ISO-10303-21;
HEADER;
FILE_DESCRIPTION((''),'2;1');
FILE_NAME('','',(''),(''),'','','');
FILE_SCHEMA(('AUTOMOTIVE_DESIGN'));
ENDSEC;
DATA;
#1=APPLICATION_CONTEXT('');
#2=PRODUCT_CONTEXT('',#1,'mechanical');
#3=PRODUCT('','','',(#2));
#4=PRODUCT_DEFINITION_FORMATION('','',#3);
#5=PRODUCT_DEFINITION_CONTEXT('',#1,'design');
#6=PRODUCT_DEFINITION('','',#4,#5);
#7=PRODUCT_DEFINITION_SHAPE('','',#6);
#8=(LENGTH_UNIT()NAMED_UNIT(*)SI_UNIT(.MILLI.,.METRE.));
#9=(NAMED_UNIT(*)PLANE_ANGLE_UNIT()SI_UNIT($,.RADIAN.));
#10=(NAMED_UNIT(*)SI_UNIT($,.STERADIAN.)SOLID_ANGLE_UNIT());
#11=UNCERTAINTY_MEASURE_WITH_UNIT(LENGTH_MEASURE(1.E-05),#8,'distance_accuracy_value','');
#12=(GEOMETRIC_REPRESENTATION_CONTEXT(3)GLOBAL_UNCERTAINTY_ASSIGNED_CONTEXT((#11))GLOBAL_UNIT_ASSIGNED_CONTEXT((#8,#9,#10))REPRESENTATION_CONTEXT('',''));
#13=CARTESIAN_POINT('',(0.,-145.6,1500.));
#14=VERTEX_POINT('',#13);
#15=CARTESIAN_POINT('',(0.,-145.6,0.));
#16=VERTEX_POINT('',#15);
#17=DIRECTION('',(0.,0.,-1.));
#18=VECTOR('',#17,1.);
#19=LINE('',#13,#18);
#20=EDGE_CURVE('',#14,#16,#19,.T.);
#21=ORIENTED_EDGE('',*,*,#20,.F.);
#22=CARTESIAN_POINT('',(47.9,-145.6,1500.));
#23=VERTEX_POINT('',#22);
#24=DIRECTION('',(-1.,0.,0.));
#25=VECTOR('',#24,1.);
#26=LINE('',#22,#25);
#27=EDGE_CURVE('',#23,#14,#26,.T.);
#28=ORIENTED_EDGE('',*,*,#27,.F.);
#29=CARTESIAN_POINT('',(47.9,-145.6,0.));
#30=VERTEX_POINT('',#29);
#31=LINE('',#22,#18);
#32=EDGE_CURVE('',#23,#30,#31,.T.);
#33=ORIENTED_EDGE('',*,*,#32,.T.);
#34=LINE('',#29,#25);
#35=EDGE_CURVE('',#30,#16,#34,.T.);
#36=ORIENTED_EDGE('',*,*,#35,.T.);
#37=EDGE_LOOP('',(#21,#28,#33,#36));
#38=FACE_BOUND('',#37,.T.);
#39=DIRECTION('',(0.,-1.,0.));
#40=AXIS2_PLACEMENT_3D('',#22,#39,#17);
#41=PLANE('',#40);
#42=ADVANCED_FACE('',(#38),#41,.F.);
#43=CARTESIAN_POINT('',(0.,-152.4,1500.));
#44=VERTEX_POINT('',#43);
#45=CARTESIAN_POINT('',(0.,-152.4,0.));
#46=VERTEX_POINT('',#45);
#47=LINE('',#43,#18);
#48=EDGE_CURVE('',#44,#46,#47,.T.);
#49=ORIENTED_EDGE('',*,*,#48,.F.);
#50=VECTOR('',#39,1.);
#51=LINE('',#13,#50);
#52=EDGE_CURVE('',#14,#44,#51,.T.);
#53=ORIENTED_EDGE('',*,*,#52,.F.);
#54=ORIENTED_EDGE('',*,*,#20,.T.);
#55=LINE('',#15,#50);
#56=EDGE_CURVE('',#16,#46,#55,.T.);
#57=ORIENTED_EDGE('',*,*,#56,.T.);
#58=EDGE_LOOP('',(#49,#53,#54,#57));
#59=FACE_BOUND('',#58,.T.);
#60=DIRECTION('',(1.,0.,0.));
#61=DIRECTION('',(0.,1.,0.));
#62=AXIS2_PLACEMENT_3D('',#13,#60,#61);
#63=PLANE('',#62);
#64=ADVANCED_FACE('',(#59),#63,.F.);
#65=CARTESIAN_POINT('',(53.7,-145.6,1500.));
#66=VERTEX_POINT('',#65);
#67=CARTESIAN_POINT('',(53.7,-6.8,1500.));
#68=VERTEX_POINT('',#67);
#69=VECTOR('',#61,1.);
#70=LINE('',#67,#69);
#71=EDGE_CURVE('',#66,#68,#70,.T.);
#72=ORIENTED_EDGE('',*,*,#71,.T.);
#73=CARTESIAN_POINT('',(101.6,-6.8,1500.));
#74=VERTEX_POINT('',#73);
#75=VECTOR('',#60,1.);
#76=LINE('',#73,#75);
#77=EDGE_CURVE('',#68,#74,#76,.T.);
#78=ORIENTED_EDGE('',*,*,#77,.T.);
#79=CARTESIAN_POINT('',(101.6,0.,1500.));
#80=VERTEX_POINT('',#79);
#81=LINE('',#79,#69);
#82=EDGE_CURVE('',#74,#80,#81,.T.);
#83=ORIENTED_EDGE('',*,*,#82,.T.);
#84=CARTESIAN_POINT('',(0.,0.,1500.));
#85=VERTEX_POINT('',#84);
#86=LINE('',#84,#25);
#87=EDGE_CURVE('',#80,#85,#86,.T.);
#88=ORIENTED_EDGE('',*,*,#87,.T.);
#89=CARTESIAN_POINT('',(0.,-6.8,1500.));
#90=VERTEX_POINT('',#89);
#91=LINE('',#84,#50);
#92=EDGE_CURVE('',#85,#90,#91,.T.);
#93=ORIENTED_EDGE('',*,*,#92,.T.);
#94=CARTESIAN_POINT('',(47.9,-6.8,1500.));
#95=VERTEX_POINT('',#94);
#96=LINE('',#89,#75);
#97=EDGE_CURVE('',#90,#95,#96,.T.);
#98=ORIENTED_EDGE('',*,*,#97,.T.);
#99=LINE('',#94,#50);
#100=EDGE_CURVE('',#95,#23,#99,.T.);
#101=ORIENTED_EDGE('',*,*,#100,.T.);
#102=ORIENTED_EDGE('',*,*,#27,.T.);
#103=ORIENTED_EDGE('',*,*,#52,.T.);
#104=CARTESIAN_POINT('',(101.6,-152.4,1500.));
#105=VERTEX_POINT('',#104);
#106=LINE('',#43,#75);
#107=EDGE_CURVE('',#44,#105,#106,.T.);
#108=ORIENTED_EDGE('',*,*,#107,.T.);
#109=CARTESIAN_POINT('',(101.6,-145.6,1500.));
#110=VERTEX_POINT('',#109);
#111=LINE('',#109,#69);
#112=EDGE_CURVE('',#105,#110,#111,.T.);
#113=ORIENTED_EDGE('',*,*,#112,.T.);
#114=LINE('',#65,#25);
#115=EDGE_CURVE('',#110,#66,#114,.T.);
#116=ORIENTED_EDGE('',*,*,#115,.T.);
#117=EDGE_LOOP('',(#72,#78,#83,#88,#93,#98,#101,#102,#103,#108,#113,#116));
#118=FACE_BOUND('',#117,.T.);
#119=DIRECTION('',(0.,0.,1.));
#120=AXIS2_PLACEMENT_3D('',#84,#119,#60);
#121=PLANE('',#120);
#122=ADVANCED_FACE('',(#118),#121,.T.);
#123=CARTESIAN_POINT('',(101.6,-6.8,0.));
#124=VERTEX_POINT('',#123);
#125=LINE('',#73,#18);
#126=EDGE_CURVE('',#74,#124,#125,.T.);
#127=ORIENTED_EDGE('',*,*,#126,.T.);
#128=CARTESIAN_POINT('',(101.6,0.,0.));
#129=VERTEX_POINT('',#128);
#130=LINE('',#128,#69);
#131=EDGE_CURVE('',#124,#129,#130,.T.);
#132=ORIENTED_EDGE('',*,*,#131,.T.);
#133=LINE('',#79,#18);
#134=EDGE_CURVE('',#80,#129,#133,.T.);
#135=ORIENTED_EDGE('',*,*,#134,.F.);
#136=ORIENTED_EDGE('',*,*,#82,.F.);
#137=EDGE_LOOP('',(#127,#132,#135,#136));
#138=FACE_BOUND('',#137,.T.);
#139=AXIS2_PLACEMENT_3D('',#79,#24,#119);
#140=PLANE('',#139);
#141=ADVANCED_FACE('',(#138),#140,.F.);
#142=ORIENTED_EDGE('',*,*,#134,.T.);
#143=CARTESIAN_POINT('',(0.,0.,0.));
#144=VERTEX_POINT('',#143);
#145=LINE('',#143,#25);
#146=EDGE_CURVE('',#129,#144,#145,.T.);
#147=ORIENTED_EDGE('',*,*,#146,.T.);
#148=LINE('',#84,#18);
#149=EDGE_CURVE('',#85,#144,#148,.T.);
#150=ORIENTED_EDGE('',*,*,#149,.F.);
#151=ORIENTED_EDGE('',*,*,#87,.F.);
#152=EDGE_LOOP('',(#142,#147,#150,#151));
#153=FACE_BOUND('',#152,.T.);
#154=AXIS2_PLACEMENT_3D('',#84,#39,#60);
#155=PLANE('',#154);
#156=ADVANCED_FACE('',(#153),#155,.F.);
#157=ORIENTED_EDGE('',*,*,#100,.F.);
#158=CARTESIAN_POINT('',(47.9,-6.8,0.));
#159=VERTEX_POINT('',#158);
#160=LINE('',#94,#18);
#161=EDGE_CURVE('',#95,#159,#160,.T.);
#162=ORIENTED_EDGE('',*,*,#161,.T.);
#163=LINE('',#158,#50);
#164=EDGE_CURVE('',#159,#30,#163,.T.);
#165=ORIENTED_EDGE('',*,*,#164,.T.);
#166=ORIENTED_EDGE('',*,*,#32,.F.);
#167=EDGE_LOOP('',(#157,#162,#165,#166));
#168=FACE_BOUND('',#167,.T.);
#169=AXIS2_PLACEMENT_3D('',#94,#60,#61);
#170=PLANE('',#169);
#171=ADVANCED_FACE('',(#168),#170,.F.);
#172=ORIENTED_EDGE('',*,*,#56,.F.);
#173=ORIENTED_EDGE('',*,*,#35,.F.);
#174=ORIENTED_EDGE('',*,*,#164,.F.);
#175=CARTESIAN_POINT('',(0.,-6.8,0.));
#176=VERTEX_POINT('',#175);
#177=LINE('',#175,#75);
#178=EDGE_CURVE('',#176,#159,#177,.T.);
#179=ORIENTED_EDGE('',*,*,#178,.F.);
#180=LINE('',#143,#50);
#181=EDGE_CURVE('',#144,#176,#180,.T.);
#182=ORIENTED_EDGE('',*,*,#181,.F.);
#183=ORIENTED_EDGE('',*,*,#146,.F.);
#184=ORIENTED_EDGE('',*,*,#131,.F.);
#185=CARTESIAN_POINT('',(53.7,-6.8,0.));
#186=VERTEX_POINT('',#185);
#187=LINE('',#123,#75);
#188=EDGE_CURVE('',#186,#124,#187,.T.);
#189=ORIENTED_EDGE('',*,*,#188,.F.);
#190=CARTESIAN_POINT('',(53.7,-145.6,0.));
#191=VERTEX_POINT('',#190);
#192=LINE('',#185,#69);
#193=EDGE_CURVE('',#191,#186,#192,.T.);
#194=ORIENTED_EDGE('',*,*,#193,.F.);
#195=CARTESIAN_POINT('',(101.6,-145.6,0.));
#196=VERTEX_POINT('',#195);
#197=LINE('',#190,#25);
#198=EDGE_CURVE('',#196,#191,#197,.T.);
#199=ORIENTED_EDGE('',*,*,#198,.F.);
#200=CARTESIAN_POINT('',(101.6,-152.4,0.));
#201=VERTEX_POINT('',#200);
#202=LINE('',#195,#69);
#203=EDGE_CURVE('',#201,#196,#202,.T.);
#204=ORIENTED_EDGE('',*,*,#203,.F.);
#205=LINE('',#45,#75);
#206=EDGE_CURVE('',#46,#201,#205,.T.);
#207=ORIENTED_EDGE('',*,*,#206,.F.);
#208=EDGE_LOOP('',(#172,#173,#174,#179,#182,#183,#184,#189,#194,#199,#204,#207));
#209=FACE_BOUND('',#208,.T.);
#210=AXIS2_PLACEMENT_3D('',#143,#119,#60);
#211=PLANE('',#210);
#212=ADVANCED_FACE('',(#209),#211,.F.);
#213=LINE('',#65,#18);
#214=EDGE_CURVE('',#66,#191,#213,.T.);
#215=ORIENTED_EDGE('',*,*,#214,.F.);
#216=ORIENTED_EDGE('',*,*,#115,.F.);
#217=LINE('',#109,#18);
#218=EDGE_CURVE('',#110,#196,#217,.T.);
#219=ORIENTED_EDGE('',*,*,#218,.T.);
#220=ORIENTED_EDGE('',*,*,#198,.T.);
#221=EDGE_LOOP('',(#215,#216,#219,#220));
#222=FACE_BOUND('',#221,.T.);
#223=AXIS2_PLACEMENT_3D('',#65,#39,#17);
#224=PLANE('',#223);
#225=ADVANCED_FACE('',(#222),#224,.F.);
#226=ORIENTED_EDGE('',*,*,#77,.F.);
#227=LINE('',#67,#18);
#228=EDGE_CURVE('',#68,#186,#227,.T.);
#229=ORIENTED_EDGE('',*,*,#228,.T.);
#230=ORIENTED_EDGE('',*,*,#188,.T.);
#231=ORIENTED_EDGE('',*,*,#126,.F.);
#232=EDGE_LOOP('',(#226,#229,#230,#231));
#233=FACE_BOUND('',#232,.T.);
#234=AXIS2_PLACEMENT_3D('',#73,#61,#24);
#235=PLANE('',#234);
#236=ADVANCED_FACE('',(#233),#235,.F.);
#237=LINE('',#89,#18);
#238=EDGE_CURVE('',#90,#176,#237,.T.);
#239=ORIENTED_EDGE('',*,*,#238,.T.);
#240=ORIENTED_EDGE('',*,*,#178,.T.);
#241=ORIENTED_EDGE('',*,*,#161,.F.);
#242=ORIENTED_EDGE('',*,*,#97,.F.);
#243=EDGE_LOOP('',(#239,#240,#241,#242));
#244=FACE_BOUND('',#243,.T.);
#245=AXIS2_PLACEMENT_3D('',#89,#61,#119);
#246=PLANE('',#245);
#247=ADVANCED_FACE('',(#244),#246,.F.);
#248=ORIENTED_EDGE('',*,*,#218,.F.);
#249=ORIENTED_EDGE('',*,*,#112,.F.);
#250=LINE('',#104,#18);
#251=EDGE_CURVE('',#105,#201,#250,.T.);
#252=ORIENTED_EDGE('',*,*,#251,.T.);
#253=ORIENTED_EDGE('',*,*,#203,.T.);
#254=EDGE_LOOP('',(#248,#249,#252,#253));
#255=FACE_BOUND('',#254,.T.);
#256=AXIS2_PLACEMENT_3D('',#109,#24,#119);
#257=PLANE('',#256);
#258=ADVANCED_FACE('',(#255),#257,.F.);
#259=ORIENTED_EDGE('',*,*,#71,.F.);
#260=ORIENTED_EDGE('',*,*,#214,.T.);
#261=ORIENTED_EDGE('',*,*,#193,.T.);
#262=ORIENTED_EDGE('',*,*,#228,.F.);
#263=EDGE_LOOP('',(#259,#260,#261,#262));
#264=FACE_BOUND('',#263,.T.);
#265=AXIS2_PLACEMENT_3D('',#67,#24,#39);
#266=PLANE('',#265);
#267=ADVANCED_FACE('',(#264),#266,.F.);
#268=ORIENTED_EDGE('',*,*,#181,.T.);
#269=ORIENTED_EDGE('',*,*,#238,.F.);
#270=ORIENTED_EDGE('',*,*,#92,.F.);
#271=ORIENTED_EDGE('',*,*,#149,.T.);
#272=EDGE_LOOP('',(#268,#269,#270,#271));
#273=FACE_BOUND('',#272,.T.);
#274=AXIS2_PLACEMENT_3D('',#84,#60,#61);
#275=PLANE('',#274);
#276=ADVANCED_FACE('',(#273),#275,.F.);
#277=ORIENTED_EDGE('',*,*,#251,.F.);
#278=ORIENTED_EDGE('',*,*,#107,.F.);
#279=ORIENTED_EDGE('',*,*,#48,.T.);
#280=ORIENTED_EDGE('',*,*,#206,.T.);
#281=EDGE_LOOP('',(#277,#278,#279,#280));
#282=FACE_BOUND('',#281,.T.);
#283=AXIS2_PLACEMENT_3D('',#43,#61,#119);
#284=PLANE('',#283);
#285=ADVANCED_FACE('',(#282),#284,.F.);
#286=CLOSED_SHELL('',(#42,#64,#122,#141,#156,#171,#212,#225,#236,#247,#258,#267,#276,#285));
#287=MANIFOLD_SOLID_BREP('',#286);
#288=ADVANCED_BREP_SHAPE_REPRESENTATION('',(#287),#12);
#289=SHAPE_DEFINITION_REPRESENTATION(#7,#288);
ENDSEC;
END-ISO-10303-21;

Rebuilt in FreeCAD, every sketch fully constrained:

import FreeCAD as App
import Part
import Sketcher

V = App.Vector


def add_polygon(sketch, points):
    """Adds a closed chain of lines whose ends are joined by coincident constraints."""
    first, n = sketch.GeometryCount, len(points)
    for a, b in zip(points, points[1:] + points[:1]):
        sketch.addGeometry(Part.LineSegment(App.Vector(*a, 0), App.Vector(*b, 0)), False)
    for i in range(n):
        sketch.addConstraint(Sketcher.Constraint("Coincident", first + i, 2, first + (i + 1) % n, 1))

doc = App.newDocument("Part")
body = doc.addObject("PartDesign::Body", "Body")

# Sketch on XY plane
sketch1 = body.newObject("Sketcher::SketchObject", "Sketch")
sketch1.AttachmentSupport = (doc.getObject("XY_Plane"), [""])
sketch1.MapMode = "FlatFace"
add_polygon(sketch1, [(102, 0), (0, 0), (0, -7), (48, -7), (48, -146), (0, -146), (0, -152), (102, -152), (102, -146), (54, -146), (54, -7), (102, -7)])  # lines 0-11
sketch1.addConstraint(Sketcher.Constraint("Horizontal", 0))
sketch1.addConstraint(Sketcher.Constraint("Vertical", 1))
sketch1.addConstraint(Sketcher.Constraint("Horizontal", 2))
sketch1.addConstraint(Sketcher.Constraint("Vertical", 3))
sketch1.addConstraint(Sketcher.Constraint("Horizontal", 4))
sketch1.addConstraint(Sketcher.Constraint("Vertical", 5))
sketch1.addConstraint(Sketcher.Constraint("Horizontal", 6))
sketch1.addConstraint(Sketcher.Constraint("Vertical", 7))
sketch1.addConstraint(Sketcher.Constraint("Horizontal", 8))
sketch1.addConstraint(Sketcher.Constraint("Vertical", 9))
sketch1.addConstraint(Sketcher.Constraint("Horizontal", 10))
sketch1.addConstraint(Sketcher.Constraint("Vertical", 11))
sketch1.addConstraint(Sketcher.Constraint("Coincident", 0, 2, -1, 1))
sketch1.addConstraint(Sketcher.Constraint("PointOnObject", 4, 2, -2))
sketch1.addConstraint(Sketcher.Constraint("Horizontal", 4, 2, 7, 2))
sketch1.addConstraint(Sketcher.Constraint("Horizontal", 2, 2, 9, 2))
sketch1.addConstraint(Sketcher.Constraint("Vertical", 7, 2, 10, 2))
sketch1.addConstraint(Sketcher.Constraint("Equal", 4, 8))
sketch1.addConstraint(Sketcher.Constraint("Equal", 1, 5))
sketch1.addConstraint(Sketcher.Constraint("DistanceX", 0, 2, 0, 1, 101.6))
sketch1.addConstraint(Sketcher.Constraint("DistanceX", 2, 1, 2, 2, 47.9))
sketch1.addConstraint(Sketcher.Constraint("DistanceY", 1, 2, 1, 1, 6.8))
sketch1.addConstraint(Sketcher.Constraint("DistanceY", 3, 2, 3, 1, 138.8))
pad1 = body.newObject("PartDesign::Pad", "Pad")
pad1.Profile = sketch1
pad1.Length = 1500

doc.recompute()
